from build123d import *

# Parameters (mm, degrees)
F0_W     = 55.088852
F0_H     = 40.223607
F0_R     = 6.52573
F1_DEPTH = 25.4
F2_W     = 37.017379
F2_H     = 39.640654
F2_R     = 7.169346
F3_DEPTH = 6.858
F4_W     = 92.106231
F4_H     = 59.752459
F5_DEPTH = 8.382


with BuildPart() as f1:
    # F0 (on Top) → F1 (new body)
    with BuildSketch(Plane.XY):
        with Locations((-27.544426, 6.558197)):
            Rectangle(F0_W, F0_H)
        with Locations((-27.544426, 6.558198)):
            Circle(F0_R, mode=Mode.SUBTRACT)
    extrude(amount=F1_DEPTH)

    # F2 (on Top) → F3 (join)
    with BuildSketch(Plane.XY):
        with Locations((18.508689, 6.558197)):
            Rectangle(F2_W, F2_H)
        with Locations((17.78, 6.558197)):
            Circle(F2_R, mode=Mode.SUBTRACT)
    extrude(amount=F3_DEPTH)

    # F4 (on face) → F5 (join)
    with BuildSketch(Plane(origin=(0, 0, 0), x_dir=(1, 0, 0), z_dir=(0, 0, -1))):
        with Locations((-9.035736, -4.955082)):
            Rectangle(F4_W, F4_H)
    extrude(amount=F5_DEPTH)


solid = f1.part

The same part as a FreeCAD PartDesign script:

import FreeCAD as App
import Part
import Sketcher

V = App.Vector
Q = App.Units.Quantity


def add_polygon(sketch, points):
    """Adds a closed chain of lines whose ends are joined by coincident constraints."""
    first, n = sketch.GeometryCount, len(points)
    for a, b in zip(points, points[1:] + points[:1]):
        sketch.addGeometry(Part.LineSegment(App.Vector(*a, 0), App.Vector(*b, 0)), False)
    for i in range(n):
        sketch.addConstraint(Sketcher.Constraint("Coincident", first + i, 2, first + (i + 1) % n, 1))

doc = App.newDocument("Part")
body = doc.addObject("PartDesign::Body", "Body")

# Sketch on XY plane
sketch1 = body.newObject("Sketcher::SketchObject", "Sketch")
sketch1.AttachmentSupport = (doc.getObject("XY_Plane"), [""])
sketch1.MapMode = "FlatFace"
add_polygon(sketch1, [(-55.088852, 26.670001), (-55.088852, -13.553607), (0, -13.553607), (0, 26.670001)])  # lines 0-3
sketch1.addGeometry(Part.Circle(V(-27.544426, 6.558198, 0), V(0, 0, 1), 6.52573), False)  # 4
sketch1.addConstraint([
    Sketcher.Constraint("Vertical", 0),
    Sketcher.Constraint("Horizontal", 1),
    Sketcher.Constraint("Vertical", 2),
    Sketcher.Constraint("Horizontal", 3),
    Sketcher.Constraint("PointOnObject", 1, 2, -2),
    Sketcher.Constraint("DistanceY", -1, 1, 2, 2, Q("1.05 in")),
    Sketcher.Constraint("Diameter", 4, Q("13.05146 mm")),
    Sketcher.Constraint("DistanceX", 1, 1, 1, 2, Q("55.088852 mm")),
    Sketcher.Constraint("DistanceY", 0, 2, 0, 1, Q("40.223607 mm")),
    Sketcher.Constraint("DistanceX", 4, 3, -1, 1, Q("27.544426 mm")),
    Sketcher.Constraint("DistanceY", -1, 1, 4, 3, Q("6.558198 mm")),
])
pad1 = body.newObject("PartDesign::Pad", "Pad")
pad1.Profile = sketch1
pad1.Length = Q("1 in")

# Sketch on XY plane
sketch2 = body.newObject("Sketcher::SketchObject", "Sketch001")
sketch2.AttachmentSupport = (doc.getObject("XY_Plane"), [""])
sketch2.MapMode = "FlatFace"
add_polygon(sketch2, [(0, 26.378524), (0, -13.26213), (37.017378, -13.26213), (37.017378, 26.378524)])  # lines 0-3
sketch2.addGeometry(Part.Circle(V(17.78, 6.558197, 0), V(0, 0, 1), 7.169346), False)  # 4
sketch2.addConstraint([
    Sketcher.Constraint("Vertical", 0),
    Sketcher.Constraint("Horizontal", 1),
    Sketcher.Constraint("Vertical", 2),
    Sketcher.Constraint("Horizontal", 3),
    Sketcher.Constraint("PointOnObject", 0, 2, -2),
    Sketcher.Constraint("DistanceX", -1, 1, 4, 3, Q("0.7 in")),
    Sketcher.Constraint("Diameter", 4, Q("14.338692 mm")),
    Sketcher.Constraint("DistanceX", 1, 1, 1, 2, Q("37.017379 mm")),
    Sketcher.Constraint("DistanceY", 0, 2, 0, 1, Q("39.640654 mm")),
    Sketcher.Constraint("DistanceY", 0, 2, -1, 1, Q("13.26213 mm")),
    Sketcher.Constraint("DistanceY", -1, 1, 4, 3, Q("6.558197 mm")),
])
pad2 = body.newObject("PartDesign::Pad", "Pad001")
pad2.Profile = sketch2
pad2.Length = Q("0.27 in")

# Sketch on XY plane
sketch3 = body.newObject("Sketcher::SketchObject", "Sketch002")
sketch3.AttachmentSupport = (doc.getObject("XY_Plane"), [""])
sketch3.MapMode = "FlatFace"
add_polygon(sketch3, [(-55.088851, -24.921148), (-55.088851, 34.831311), (37.017379, 34.831311), (37.017379, -24.921148)])  # lines 0-3
sketch3.addConstraint([
    Sketcher.Constraint("Vertical", 0),
    Sketcher.Constraint("Horizontal", 1),
    Sketcher.Constraint("Vertical", 2),
    Sketcher.Constraint("Horizontal", 3),
    Sketcher.Constraint("DistanceX", 1, 1, 1, 2, Q("92.106231 mm")),
    Sketcher.Constraint("DistanceY", 0, 1, 0, 2, Q("59.752459 mm")),
    Sketcher.Constraint("DistanceX", 0, 2, -1, 1, Q("55.088851 mm")),
    Sketcher.Constraint("DistanceY", -1, 1, 0, 2, Q("34.831311 mm")),
])
pad3 = body.newObject("PartDesign::Pad", "Pad002")
pad3.Profile = sketch3
pad3.Length = Q("0.33 in")
pad3.Reversed = True

doc.recompute()
